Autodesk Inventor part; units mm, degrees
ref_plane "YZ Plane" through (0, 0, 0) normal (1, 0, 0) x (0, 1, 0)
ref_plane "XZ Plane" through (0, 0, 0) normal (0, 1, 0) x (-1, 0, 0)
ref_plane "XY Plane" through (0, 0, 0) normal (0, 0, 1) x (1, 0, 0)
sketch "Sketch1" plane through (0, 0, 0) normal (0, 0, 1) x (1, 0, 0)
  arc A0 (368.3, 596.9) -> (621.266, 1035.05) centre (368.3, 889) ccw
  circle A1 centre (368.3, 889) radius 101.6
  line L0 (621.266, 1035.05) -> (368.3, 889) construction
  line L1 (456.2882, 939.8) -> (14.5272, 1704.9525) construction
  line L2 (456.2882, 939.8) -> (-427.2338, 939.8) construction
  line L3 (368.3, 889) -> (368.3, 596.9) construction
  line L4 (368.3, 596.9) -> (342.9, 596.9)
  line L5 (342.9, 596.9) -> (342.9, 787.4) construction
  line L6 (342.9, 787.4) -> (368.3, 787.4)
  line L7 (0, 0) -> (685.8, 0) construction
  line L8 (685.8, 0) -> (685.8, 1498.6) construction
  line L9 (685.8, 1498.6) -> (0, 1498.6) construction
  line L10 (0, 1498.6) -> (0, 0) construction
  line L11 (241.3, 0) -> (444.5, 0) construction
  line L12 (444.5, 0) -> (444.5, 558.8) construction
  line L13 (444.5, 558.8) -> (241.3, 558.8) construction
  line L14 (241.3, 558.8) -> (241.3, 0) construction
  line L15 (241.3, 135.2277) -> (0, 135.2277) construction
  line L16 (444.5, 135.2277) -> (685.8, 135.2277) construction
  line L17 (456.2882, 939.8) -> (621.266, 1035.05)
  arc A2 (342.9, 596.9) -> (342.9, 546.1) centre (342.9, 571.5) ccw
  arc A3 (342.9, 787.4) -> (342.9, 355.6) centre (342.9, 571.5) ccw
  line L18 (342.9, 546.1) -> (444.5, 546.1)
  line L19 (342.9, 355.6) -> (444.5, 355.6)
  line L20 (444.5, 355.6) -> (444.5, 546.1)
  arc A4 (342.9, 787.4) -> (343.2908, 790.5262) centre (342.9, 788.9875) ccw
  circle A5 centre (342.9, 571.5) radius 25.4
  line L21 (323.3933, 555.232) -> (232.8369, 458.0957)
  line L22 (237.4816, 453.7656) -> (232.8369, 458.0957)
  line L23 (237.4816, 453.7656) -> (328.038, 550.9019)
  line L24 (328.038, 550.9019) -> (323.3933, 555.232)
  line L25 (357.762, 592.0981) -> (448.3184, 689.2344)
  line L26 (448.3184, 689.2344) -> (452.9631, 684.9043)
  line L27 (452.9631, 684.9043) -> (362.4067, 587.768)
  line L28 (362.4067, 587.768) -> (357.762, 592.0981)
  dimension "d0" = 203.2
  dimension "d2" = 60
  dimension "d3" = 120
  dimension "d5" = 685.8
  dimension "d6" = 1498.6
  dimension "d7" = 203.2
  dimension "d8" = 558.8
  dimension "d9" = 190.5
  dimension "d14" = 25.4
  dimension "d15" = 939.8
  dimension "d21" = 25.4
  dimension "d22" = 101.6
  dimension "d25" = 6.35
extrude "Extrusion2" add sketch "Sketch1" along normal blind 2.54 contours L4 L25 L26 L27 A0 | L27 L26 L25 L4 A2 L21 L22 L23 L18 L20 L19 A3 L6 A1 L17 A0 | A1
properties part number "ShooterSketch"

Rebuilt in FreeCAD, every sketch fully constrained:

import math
import FreeCAD as App
import Part
import Sketcher
from FreeCAD import Vector
Q = App.Units.Quantity

doc = App.newDocument("Part")
body = doc.addObject("PartDesign::Body", "Body")

# Sketch on XY plane
sketch1 = doc.addObject("Sketcher::SketchObject", "Sketch")
body.addObject(sketch1)
sketch1.AttachmentSupport = (doc.XY_Plane, [""])
sketch1.MapMode = "FlatFace"
sketch1.addGeometry(Part.ArcOfCircle(Part.Circle(Vector(368.3, 889, 0), Vector(0, 0, 1), 292.1), math.radians(-90), math.radians(30.000002)), False)
sketch1.addGeometry(Part.LineSegment(Vector(621.266, 1035.05, 0), Vector(456.2882, 939.8, 0)), False)
sketch1.addGeometry(Part.ArcOfCircle(Part.Circle(Vector(368.3, 889, 0), Vector(0, 0, 1), 101.6), math.radians(29.999995), math.radians(270)), False)
sketch1.addGeometry(Part.LineSegment(Vector(368.3, 787.4, 0), Vector(342.9, 787.4, 0)), False)
sketch1.addGeometry(Part.ArcOfCircle(Part.Circle(Vector(342.9, 571.5, 0), Vector(0, 0, 1), 215.9), math.radians(90), math.radians(270)), False)
sketch1.addGeometry(Part.LineSegment(Vector(342.9, 355.6, 0), Vector(444.5, 355.6, 0)), False)
sketch1.addGeometry(Part.LineSegment(Vector(444.5, 355.6, 0), Vector(444.5, 546.1, 0)), False)
sketch1.addGeometry(Part.LineSegment(Vector(444.5, 546.1, 0), Vector(342.9, 546.1, 0)), False)
sketch1.addGeometry(Part.ArcOfCircle(Part.Circle(Vector(342.9, 571.5, 0), Vector(0, 0, 1), 25.4), math.radians(-125.81131), math.radians(-90)), False)
sketch1.addGeometry(Part.LineSegment(Vector(328.038, 550.9019, 0), Vector(237.4816, 453.7656, 0)), False)
sketch1.addGeometry(Part.LineSegment(Vector(237.4816, 453.7656, 0), Vector(232.8369, 458.0957, 0)), False)
sketch1.addGeometry(Part.LineSegment(Vector(232.8369, 458.0957, 0), Vector(323.3933, 555.232, 0)), False)
sketch1.addGeometry(Part.ArcOfCircle(Part.Circle(Vector(342.9, 571.5, 0), Vector(0, 0, 1), 25.4), math.radians(90), math.radians(219.827088)), False)
sketch1.addGeometry(Part.LineSegment(Vector(342.9, 596.9, 0), Vector(368.3, 596.9, 0)), False)
sketch1.addConstraint(Sketcher.Constraint("Coincident", 0, 2, 1, 1))
sketch1.addConstraint(Sketcher.Constraint("Coincident", 1, 2, 2, 1))
sketch1.addConstraint(Sketcher.Constraint("Tangent", 2, 2, 3, 1))
sketch1.addConstraint(Sketcher.Constraint("Tangent", 3, 2, 4, 1))
sketch1.addConstraint(Sketcher.Constraint("Tangent", 4, 2, 5, 1))
sketch1.addConstraint(Sketcher.Constraint("Coincident", 5, 2, 6, 1))
sketch1.addConstraint(Sketcher.Constraint("Coincident", 6, 2, 7, 1))
sketch1.addConstraint(Sketcher.Constraint("Tangent", 7, 2, 8, 2))
sketch1.addConstraint(Sketcher.Constraint("Coincident", 8, 1, 9, 1))
sketch1.addConstraint(Sketcher.Constraint("Coincident", 9, 2, 10, 1))
sketch1.addConstraint(Sketcher.Constraint("Coincident", 10, 2, 11, 1))
sketch1.addConstraint(Sketcher.Constraint("Coincident", 11, 2, 12, 2))
sketch1.addConstraint(Sketcher.Constraint("Tangent", 12, 1, 13, 1))
sketch1.addConstraint(Sketcher.Constraint("Tangent", 13, 2, 0, 1))
sketch1.addConstraint(Sketcher.Constraint("Horizontal", 3))
sketch1.addConstraint(Sketcher.Constraint("Horizontal", 5))
sketch1.addConstraint(Sketcher.Constraint("Vertical", 6))
sketch1.addConstraint(Sketcher.Constraint("Horizontal", 7))
sketch1.addConstraint(Sketcher.Constraint("Horizontal", 13))
sketch1.addConstraint(Sketcher.Constraint("Coincident", 2, 3, 0, 3))
sketch1.addConstraint(Sketcher.Constraint("Coincident", 8, 3, 4, 3))
sketch1.addConstraint(Sketcher.Constraint("Coincident", 12, 3, 4, 3))
sketch1.addConstraint(Sketcher.Constraint("Equal", 8, 12))
sketch1.addConstraint(Sketcher.Constraint("Perpendicular", 9, 10))
sketch1.addConstraint(Sketcher.Constraint("Perpendicular", 10, 11))
sketch1.addConstraint(Sketcher.Constraint("Equal", 9, 11))
sketch1.addConstraint(Sketcher.Constraint("Radius", 2, Q("4 in")))
sketch1.addConstraint(Sketcher.Constraint("Radius", 8, Q("1 in")))
sketch1.addConstraint(Sketcher.Constraint("DistanceX", 3, 2, 3, 1, Q("1 in")))
sketch1.addConstraint(Sketcher.Constraint("DistanceX", 5, 1, 5, 2, Q("4 in")))
sketch1.addConstraint(Sketcher.Constraint("DistanceY", 6, 1, 6, 2, Q("7.5 in")))
sketch1.addConstraint(Sketcher.Constraint("DistanceY", -1, 1, 1, 2, Q("37 in")))
sketch1.addConstraint(Sketcher.Constraint("Distance", 10, Q("0.25 in")))
sketch1.addConstraint(Sketcher.Constraint("DistanceY", -1, 1, 0, 3, Q("35 in")))
sketch1.addConstraint(Sketcher.Constraint("Angle", 1, Q("-150 deg")))
sketch1.addConstraint(Sketcher.Constraint("DistanceX", -1, 1, 0, 3, Q("14.5 in")))
sketch1.addConstraint(Sketcher.Constraint("DistanceX", -1, 1, 10, 2, Q("9.1668 in")))
sketch1.addConstraint(Sketcher.Constraint("Distance", 9, Q("132.8003 mm")))
pad1 = doc.addObject("PartDesign::Pad", "Pad")
body.addObject(pad1)
pad1.Profile = sketch1
pad1.Length = Q("0.1 in")

doc.recompute()
